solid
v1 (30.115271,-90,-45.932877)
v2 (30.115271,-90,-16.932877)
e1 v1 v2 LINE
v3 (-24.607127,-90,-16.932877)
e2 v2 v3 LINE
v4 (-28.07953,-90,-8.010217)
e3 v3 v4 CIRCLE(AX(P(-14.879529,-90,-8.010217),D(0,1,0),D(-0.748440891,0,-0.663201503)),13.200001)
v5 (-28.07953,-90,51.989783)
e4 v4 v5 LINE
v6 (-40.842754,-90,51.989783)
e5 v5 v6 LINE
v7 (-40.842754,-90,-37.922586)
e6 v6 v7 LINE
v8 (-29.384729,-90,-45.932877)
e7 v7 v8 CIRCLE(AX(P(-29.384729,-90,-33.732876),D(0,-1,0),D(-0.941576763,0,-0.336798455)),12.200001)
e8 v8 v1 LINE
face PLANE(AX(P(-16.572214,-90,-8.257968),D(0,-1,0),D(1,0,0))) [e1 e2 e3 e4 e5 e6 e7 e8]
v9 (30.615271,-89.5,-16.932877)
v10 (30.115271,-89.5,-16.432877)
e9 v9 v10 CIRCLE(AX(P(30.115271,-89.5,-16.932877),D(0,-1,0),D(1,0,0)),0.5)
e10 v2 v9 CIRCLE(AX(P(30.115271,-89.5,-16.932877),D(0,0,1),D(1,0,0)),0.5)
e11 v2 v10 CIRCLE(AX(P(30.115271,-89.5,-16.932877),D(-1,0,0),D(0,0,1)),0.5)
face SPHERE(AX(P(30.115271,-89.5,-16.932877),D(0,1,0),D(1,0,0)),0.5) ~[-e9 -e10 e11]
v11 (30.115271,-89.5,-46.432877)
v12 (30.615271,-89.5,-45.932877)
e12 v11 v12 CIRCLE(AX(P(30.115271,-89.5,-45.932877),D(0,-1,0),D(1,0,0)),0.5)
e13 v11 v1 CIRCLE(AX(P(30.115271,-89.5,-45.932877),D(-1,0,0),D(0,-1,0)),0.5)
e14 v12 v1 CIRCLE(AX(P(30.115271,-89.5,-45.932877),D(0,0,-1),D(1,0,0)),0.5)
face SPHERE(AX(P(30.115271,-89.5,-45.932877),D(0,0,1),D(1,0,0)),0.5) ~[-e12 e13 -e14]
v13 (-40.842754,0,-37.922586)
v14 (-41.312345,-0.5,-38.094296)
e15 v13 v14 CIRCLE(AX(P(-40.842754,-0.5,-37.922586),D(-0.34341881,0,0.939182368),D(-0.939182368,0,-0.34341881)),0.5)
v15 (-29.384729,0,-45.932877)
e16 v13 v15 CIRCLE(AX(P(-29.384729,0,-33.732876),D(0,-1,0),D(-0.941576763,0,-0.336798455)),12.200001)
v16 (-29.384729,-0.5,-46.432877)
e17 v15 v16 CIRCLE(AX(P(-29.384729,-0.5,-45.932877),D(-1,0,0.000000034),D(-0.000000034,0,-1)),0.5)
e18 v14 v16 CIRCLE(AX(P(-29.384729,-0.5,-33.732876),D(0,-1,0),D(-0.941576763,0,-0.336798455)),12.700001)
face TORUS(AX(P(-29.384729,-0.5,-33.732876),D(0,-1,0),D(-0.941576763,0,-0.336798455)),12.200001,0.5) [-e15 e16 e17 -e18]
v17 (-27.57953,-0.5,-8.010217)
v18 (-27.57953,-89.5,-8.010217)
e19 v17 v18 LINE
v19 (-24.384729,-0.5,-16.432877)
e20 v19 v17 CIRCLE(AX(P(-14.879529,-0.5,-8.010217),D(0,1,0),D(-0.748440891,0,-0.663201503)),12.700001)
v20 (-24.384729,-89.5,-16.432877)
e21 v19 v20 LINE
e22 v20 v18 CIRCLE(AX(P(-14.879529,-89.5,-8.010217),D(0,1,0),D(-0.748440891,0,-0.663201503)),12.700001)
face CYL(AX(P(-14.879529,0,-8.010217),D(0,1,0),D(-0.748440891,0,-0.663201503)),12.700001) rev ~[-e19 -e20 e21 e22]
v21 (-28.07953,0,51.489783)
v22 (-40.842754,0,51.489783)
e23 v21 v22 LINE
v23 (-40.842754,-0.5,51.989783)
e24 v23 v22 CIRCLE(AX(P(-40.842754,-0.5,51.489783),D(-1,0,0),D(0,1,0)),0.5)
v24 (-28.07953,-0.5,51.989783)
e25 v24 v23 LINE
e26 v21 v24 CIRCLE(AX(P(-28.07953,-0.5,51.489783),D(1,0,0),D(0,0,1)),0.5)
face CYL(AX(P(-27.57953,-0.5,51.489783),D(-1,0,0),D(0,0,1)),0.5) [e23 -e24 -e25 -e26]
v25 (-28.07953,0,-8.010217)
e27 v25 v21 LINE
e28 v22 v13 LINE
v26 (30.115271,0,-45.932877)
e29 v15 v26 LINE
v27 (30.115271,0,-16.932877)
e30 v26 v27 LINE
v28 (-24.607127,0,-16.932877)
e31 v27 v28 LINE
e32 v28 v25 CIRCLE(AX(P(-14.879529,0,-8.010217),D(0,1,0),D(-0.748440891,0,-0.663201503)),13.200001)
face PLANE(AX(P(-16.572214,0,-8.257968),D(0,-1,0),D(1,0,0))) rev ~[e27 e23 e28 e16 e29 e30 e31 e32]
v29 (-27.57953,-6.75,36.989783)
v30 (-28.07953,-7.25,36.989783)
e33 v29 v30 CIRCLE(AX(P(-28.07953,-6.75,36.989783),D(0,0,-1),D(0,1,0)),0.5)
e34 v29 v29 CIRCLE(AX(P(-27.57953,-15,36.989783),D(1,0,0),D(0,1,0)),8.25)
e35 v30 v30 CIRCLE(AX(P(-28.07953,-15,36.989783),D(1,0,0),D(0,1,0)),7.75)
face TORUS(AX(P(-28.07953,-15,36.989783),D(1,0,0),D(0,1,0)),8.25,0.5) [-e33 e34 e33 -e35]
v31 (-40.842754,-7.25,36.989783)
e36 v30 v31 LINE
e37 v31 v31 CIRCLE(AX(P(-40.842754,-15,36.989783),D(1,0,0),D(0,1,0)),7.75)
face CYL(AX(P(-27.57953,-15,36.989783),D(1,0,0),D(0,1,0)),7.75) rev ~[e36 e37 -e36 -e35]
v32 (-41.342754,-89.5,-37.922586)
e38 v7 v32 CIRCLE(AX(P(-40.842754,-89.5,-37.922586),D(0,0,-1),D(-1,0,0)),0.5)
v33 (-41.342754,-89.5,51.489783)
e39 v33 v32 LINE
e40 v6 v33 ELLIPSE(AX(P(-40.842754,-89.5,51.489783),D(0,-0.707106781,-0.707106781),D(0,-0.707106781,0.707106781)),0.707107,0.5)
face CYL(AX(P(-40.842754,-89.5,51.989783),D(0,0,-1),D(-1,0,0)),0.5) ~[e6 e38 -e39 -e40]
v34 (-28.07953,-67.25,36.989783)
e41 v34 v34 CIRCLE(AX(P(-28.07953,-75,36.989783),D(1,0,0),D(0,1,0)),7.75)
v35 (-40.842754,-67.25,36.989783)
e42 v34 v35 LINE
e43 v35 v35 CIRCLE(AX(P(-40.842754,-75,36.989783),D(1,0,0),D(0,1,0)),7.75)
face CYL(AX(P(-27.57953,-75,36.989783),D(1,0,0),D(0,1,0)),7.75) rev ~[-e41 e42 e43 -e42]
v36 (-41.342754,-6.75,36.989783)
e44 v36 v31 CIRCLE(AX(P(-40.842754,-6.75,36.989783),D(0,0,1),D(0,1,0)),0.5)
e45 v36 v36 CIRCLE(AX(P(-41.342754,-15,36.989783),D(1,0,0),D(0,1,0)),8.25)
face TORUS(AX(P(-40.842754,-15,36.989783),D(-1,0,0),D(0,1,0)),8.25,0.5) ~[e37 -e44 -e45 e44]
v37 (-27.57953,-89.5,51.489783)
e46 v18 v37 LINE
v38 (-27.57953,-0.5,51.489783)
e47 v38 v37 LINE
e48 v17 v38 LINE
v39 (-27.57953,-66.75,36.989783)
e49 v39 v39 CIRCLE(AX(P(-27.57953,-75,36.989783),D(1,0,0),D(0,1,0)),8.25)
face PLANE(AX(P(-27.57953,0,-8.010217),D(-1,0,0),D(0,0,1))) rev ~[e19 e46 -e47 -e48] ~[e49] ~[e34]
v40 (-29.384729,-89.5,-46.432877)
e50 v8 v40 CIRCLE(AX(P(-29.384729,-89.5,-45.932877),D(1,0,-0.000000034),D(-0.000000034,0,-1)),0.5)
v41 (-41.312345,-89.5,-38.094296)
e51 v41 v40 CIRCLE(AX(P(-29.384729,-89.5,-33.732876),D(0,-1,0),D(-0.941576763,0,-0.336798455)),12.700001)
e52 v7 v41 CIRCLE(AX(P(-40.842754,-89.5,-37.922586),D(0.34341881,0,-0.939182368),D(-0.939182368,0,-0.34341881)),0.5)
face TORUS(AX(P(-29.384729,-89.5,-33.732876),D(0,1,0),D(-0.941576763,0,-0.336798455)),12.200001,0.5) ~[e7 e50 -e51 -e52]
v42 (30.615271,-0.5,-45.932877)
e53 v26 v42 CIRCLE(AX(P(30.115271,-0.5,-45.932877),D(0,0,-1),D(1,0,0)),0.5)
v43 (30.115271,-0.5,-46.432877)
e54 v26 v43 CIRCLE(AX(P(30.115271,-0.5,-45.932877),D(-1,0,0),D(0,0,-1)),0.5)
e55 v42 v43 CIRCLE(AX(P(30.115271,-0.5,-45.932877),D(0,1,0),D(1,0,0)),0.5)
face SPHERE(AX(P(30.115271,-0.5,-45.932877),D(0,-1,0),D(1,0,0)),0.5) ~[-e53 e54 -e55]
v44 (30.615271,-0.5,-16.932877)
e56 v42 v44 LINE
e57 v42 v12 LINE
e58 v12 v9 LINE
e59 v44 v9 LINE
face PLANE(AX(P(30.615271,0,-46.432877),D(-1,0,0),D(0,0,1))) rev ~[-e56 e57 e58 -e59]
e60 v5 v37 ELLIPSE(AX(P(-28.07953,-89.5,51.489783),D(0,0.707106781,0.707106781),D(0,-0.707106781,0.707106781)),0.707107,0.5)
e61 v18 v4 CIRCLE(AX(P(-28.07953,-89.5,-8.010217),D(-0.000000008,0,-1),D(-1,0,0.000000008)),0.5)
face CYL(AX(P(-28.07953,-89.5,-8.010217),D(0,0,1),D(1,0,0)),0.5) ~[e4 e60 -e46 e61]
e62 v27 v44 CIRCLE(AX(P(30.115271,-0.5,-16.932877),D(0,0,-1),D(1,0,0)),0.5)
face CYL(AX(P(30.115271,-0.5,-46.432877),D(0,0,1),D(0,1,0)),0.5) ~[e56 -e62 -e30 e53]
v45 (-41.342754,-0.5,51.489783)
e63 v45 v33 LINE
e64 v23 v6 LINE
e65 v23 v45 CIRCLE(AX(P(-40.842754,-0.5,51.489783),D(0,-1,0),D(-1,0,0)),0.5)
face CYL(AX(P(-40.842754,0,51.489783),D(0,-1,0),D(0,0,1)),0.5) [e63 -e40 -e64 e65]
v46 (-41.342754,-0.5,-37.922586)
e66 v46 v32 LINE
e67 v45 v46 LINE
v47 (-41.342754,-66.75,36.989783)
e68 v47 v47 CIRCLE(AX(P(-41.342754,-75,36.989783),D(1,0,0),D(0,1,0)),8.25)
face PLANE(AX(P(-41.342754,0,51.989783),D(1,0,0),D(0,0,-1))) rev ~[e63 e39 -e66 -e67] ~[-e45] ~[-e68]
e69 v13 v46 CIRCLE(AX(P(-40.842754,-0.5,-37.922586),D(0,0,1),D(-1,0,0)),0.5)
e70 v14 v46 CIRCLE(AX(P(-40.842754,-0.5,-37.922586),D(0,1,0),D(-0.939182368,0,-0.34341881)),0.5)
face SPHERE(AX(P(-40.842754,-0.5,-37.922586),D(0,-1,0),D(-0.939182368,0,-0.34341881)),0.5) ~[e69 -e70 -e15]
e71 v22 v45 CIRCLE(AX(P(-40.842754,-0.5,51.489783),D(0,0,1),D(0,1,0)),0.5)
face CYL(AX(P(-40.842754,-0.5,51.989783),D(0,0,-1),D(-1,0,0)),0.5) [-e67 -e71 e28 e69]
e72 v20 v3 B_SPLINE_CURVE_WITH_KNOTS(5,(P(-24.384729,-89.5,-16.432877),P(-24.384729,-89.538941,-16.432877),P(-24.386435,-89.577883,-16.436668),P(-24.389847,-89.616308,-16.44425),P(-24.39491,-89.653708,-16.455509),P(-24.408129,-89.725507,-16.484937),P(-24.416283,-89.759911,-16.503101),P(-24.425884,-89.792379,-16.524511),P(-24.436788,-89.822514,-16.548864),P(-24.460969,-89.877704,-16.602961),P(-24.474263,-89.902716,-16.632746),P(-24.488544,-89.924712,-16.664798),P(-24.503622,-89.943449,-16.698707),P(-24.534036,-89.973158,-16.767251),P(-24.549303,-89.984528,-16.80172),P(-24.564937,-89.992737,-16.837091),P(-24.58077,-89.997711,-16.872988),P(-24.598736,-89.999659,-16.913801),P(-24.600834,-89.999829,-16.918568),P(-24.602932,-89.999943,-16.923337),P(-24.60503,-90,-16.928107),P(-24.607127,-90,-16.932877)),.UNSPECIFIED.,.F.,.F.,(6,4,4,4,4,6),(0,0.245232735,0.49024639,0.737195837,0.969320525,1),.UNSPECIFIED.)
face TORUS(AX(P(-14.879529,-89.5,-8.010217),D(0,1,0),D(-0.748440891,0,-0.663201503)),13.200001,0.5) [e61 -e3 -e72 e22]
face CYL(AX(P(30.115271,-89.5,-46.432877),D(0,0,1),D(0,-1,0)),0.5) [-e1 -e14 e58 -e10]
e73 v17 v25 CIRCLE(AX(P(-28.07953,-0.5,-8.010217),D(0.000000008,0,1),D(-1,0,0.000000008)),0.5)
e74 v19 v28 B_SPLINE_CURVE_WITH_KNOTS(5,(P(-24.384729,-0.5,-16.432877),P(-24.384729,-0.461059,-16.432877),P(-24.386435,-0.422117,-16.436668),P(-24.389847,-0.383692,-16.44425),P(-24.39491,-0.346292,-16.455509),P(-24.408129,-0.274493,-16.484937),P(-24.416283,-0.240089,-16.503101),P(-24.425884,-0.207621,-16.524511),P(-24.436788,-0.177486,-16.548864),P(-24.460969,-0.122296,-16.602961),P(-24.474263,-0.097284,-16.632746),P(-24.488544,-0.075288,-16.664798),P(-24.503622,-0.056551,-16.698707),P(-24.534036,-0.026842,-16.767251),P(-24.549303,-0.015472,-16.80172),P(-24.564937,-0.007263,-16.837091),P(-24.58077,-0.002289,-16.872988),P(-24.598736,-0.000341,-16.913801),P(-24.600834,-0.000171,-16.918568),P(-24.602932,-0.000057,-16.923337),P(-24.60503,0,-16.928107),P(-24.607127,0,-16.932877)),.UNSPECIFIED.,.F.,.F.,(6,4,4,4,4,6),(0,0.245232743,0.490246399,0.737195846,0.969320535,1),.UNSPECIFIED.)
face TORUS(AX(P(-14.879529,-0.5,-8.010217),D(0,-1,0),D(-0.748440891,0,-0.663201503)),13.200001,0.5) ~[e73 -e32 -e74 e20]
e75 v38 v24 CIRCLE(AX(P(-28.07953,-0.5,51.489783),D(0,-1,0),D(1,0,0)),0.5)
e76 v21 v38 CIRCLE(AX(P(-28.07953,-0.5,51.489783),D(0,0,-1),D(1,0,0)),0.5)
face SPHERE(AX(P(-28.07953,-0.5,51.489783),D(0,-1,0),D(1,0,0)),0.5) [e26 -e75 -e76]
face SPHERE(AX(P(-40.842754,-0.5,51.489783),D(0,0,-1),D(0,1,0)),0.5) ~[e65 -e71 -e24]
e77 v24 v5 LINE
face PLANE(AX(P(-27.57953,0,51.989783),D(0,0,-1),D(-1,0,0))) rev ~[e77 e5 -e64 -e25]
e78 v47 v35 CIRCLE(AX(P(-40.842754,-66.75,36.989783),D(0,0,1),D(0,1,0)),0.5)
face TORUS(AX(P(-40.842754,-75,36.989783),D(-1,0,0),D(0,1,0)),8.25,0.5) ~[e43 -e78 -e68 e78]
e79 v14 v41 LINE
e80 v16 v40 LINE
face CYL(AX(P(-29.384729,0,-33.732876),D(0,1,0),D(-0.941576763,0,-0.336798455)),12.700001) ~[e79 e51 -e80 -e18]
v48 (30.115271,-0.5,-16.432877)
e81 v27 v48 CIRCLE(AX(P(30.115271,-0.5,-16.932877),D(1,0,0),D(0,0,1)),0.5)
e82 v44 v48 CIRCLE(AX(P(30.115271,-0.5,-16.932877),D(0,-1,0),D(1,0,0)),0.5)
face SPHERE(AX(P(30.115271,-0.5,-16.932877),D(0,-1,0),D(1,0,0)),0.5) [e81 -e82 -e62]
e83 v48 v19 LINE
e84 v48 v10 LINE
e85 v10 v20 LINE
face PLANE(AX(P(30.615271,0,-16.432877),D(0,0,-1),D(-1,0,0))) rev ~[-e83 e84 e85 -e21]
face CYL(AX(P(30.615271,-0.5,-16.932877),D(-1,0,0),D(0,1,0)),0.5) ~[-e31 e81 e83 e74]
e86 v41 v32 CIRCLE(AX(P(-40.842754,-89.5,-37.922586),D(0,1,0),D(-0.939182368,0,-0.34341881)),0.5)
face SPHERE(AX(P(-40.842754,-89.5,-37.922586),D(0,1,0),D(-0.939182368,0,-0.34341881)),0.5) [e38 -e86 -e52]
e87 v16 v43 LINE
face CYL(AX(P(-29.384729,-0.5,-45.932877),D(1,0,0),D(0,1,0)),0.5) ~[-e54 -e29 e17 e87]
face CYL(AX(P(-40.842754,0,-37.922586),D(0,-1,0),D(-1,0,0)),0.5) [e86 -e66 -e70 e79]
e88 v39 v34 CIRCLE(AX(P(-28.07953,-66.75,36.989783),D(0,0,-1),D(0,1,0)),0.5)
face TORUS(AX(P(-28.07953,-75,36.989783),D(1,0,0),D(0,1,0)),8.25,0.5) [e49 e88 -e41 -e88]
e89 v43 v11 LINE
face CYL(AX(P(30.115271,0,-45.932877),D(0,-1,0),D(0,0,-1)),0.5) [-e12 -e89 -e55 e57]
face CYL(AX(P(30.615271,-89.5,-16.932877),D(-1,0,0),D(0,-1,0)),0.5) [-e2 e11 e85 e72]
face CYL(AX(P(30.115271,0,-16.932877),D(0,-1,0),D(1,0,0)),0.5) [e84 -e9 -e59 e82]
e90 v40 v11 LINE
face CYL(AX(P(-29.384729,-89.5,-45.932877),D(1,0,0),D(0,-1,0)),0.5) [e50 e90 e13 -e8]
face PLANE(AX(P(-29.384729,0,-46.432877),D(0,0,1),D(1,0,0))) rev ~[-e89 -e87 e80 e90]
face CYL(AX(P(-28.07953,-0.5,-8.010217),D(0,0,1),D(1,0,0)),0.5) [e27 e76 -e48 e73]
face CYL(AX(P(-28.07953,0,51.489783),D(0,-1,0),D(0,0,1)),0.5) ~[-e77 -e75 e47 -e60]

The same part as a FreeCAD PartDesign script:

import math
import FreeCAD as App
import Part
import Sketcher

V = App.Vector


def edges_at(feature, points):
    """Names of the edges that pass closest to the given points."""
    edges = feature.Shape.Edges
    near = lambda p: min(range(len(edges)), key=lambda i: edges[i].distToShape(Part.Vertex(*p))[0])
    return sorted({f"Edge{near(p) + 1}" for p in points})

doc = App.newDocument("Part")
params = doc.addObject("Spreadsheet::Sheet", "Params")
for row, (alias, value) in enumerate([
    ("sketch1_radius", "12.700001 mm"),
    ("sketch1_width", "60 mm"),
    ("sketch1_width2", "55 mm"),
    ("sketch1_height", "90 mm"),
    ("sketch1_height2", "30 mm"),
    ("pad1_length", "90 mm"),
    ("sketch2_diameter", "15.5 mm"),
    ("pocket1_length", "25 mm"),
    ("fillet_radius", "0.5 mm"),
    ("fillet2_radius", "0.5 mm"),
], start=1):
    params.set(f"A{row}", alias)
    params.set(f"B{row}", "=" + value)
    params.setAlias(f"B{row}", alias)

body = doc.addObject("PartDesign::Body", "Body")

# Sketch on XZ plane
sketch1 = doc.addObject("Sketcher::SketchObject", "Sketch")
body.addObject(sketch1)
sketch1.AttachmentSupport = (doc.XZ_Plane, [""])
sketch1.MapMode = "FlatFace"
sketch1.addGeometry([
    Part.LineSegment(V(-27.57953, 51.989783, 0), V(-41.342754, 51.989783, 0)),  # 0
    Part.LineSegment(V(-41.342754, 51.989783, 0), V(-41.342754, -38.010217, 0)),  # 1
    Part.ArcOfCircle(Part.Circle(V(-29.384729, -33.732876, 0), V(0, 0, 1), 12.700001), math.radians(-160.318062), math.radians(-90.000002)),  # 2
    Part.LineSegment(V(-29.384729, -46.432877, 0), V(30.615271, -46.432877, 0)),  # 3
    Part.LineSegment(V(30.615271, -46.432877, 0), V(30.615271, -16.432877, 0)),  # 4
    Part.LineSegment(V(30.615271, -16.432877, 0), V(-24.384729, -16.432877, 0)),  # 5
    Part.ArcOfCircle(Part.Circle(V(-14.879529, -8.010217, 0), V(0, 0, 1), 12.700001), math.radians(180), math.radians(221.544497)),  # 6
    Part.LineSegment(V(-27.57953, -8.010217, 0), V(-27.57953, 51.989783, 0)),  # 7
], False)
sketch1.addConstraint([
    Sketcher.Constraint("Coincident", 0, 2, 1, 1),
    Sketcher.Constraint("Coincident", 1, 2, 2, 1),
    Sketcher.Constraint("Tangent", 2, 2, 3, 1),
    Sketcher.Constraint("Coincident", 3, 2, 4, 1),
    Sketcher.Constraint("Coincident", 4, 2, 5, 1),
    Sketcher.Constraint("Coincident", 5, 2, 6, 2),
    Sketcher.Constraint("Tangent", 6, 1, 7, 1),
    Sketcher.Constraint("Coincident", 7, 2, 0, 1),
    Sketcher.Constraint("Horizontal", 0),
    Sketcher.Constraint("Vertical", 1),
    Sketcher.Constraint("Horizontal", 3),
    Sketcher.Constraint("Vertical", 4),
    Sketcher.Constraint("Horizontal", 5),
    Sketcher.Constraint("Vertical", 7),
    Sketcher.Constraint("Equal", 2, 6),
    Sketcher.Constraint("Equal", 3, 7),
    Sketcher.Constraint("Radius", 2, 12.700001),
    Sketcher.Constraint("DistanceX", 3, 1, 3, 2, 60.0),
    Sketcher.Constraint("DistanceX", 5, 2, 5, 1, 55.0),
    Sketcher.Constraint("DistanceY", 1, 2, 1, 1, 90.0),
    Sketcher.Constraint("DistanceY", 4, 1, 4, 2, 30.0),
    Sketcher.Constraint("DistanceX", 2, 3, 6, 3, 14.5052),
    Sketcher.Constraint("DistanceX", 2, 3, -1, 1, 29.384729),
    Sketcher.Constraint("DistanceY", 2, 3, -1, 1, 33.732876),
])
sketch1.setExpression("Constraints[16]", "Params.sketch1_radius")
sketch1.setExpression("Constraints[17]", "Params.sketch1_width")
sketch1.setExpression("Constraints[18]", "Params.sketch1_width2")
sketch1.setExpression("Constraints[19]", "Params.sketch1_height")
sketch1.setExpression("Constraints[20]", "Params.sketch1_height2")
pad1 = doc.addObject("PartDesign::Pad", "Pad")
body.addObject(pad1)
pad1.Profile = sketch1
pad1.setExpression("Length", "Params.pad1_length")

# Sketch on YZ plane
sketch2 = doc.addObject("Sketcher::SketchObject", "Sketch001")
body.addObject(sketch2)
sketch2.AttachmentSupport = (doc.YZ_Plane, [""])
sketch2.MapMode = "FlatFace"
sketch2.AttachmentOffset = App.Placement(V(0, 0, -27.57953), App.Rotation())
sketch2.addGeometry([
    Part.Circle(V(-75, 36.989783, 0), V(0, 0, 1), 7.75),
    Part.Circle(V(-15, 36.989783, 0), V(0, 0, 1), 7.75),
], False)
sketch2.addConstraint([
    Sketcher.Constraint("Equal", 0, 1),
    Sketcher.Constraint("Horizontal", 0, 3, 1, 3),
    Sketcher.Constraint("Diameter", 0, 15.5),
    Sketcher.Constraint("DistanceX", 0, 3, -1, 1, 75.0),
    Sketcher.Constraint("DistanceX", 1, 3, -1, 1, 15.0),
    Sketcher.Constraint("DistanceY", -1, 1, 0, 3, 36.989783),
])
sketch2.setExpression("Constraints[2]", "Params.sketch2_diameter")
pocket1 = doc.addObject("PartDesign::Pocket", "Pocket")
body.addObject(pocket1)
pocket1.Profile = sketch2
pocket1.setExpression("Length", "Params.pocket1_length")
doc.recompute()

fillet = doc.addObject("PartDesign::Fillet", "Fillet")
body.addObject(fillet)
fillet.Base = (pocket1, edges_at(pocket1, [
    (-27.58, -45, 51.99),
    (-27.58, 0, 21.99),
    (-27.58, -90, 21.99),
    (30.615, -45, -16.433),
    (30.615, -90, -31.433),
    (30.615, -45, -46.433),
    (30.615, 0, -31.433),
    (3.115, 0, -16.433),
    (0.615, 0, -46.433),
    (-41.343, 0, 6.99),
    (-34.461, 0, 51.99),
    (-41.343, -45, 51.99),
    (-41.343, -90, 6.99),
    (-41.343, -45, -38.01),
    (0.615, -90, -46.433),
    (3.115, -90, -16.433),
]))
fillet.setExpression("Radius", "Params.fillet_radius")
doc.recompute()

fillet2 = doc.addObject("PartDesign::Fillet", "Fillet001")
body.addObject(fillet2)
fillet2.Base = (fillet, edges_at(fillet, [
    (-27.58, -22.75, 36.99),
    (-27.58, -82.75, 36.99),
    (-41.343, -82.75, 36.99),
    (-41.343, -22.75, 36.99),
]))
fillet2.setExpression("Radius", "Params.fillet2_radius")

doc.recompute()
